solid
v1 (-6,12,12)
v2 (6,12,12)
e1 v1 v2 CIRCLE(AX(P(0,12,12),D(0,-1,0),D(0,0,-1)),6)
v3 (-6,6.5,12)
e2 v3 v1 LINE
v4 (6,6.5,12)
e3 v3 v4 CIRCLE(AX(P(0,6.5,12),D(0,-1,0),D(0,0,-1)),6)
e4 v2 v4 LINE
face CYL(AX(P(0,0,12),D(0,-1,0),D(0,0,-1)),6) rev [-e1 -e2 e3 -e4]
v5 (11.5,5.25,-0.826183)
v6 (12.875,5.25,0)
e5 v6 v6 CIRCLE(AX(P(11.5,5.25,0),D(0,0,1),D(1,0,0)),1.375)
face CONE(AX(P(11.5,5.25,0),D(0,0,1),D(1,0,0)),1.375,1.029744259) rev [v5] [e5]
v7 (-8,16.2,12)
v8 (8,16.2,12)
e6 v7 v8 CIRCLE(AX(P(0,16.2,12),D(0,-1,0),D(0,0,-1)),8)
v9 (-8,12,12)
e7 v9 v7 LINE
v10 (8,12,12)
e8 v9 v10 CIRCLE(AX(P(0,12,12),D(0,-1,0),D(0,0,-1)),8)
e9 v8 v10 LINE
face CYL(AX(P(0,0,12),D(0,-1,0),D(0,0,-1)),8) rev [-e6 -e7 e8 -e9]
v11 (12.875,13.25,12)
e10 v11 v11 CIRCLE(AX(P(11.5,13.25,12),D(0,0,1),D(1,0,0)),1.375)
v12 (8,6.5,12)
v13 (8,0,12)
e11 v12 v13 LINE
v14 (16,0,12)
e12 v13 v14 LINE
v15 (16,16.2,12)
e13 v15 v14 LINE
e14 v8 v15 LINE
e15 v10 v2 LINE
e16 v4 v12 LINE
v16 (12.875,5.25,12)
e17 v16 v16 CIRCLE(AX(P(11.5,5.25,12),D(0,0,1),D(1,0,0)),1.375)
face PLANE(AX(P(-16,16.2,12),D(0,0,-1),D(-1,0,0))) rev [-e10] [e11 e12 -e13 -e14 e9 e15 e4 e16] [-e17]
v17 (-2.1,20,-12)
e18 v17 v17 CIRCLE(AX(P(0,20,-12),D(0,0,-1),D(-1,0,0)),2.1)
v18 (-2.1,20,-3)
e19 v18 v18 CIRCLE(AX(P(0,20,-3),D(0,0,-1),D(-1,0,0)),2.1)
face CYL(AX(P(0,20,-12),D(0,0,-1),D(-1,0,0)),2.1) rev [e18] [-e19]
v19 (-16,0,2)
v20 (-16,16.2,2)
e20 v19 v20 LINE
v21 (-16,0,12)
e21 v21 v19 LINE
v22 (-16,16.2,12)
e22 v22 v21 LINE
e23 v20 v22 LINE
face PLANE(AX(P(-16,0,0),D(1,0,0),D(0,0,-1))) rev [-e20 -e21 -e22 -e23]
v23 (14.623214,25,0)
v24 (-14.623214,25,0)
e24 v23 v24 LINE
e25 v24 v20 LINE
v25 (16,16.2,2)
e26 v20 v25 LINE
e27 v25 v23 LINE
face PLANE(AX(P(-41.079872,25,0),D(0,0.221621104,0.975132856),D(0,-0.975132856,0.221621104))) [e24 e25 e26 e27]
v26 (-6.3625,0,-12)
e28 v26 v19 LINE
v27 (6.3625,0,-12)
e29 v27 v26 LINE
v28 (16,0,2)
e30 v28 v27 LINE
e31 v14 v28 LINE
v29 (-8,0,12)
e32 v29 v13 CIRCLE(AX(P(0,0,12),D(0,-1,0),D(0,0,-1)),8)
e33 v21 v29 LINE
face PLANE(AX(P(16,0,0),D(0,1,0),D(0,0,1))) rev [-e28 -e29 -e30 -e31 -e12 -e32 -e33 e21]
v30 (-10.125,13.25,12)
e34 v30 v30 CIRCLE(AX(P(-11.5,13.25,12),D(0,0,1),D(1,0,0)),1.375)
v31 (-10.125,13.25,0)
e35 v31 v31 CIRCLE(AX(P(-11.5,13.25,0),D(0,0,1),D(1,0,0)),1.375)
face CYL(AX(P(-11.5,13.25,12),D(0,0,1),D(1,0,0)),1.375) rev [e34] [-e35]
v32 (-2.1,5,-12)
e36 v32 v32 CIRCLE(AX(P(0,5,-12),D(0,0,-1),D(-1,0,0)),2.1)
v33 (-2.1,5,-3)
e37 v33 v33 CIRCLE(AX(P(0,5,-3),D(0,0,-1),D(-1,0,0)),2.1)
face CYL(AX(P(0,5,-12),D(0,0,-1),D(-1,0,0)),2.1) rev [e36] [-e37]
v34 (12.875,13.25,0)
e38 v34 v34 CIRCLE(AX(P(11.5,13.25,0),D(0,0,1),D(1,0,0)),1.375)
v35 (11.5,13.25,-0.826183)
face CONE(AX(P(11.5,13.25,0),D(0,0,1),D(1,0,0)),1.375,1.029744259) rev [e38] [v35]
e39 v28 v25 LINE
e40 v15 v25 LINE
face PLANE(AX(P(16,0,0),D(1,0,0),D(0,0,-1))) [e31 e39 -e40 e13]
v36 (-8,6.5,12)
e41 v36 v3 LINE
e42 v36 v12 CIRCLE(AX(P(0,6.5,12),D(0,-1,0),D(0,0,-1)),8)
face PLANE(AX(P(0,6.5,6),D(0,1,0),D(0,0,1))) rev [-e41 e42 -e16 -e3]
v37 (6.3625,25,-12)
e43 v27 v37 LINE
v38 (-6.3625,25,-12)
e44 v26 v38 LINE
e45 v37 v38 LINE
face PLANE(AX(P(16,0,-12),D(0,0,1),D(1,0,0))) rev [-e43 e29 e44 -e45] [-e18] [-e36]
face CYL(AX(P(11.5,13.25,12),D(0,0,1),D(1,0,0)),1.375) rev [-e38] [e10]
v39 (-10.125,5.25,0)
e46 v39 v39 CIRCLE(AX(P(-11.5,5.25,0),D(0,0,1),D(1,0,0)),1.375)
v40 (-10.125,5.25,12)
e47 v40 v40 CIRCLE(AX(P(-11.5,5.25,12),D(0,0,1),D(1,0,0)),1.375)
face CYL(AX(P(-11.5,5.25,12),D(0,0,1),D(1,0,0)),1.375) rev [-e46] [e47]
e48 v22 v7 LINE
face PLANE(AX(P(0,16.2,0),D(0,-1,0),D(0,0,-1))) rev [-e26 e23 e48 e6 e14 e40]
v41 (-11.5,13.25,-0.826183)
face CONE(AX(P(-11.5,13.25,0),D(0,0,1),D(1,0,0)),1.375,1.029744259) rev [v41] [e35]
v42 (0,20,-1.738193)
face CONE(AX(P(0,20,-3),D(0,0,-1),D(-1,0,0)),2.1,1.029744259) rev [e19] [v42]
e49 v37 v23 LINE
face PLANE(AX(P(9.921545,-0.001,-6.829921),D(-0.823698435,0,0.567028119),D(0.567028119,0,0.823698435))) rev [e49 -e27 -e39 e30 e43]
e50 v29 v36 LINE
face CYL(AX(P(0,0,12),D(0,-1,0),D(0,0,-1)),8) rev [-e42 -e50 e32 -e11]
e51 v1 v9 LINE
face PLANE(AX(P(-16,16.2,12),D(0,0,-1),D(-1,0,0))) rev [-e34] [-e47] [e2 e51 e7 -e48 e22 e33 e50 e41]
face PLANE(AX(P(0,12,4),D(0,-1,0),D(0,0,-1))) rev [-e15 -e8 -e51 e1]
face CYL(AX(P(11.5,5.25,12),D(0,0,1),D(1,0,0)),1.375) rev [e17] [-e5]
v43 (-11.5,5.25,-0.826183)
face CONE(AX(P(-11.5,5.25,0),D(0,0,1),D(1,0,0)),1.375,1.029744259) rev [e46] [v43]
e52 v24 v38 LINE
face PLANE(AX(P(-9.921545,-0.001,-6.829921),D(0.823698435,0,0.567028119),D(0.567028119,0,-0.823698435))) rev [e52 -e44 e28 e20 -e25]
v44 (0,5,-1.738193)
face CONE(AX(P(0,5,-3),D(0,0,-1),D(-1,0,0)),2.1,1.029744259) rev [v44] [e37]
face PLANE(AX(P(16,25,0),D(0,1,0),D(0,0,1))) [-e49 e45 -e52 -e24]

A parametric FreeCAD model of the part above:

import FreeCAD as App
import Part
import Sketcher

V = App.Vector


def add_polygon(sketch, points):
    """Adds a closed chain of lines whose ends are joined by coincident constraints."""
    first, n = sketch.GeometryCount, len(points)
    for a, b in zip(points, points[1:] + points[:1]):
        sketch.addGeometry(Part.LineSegment(App.Vector(*a, 0), App.Vector(*b, 0)), False)
    for i in range(n):
        sketch.addConstraint(Sketcher.Constraint("Coincident", first + i, 2, first + (i + 1) % n, 1))

doc = App.newDocument("Part")
body = doc.addObject("PartDesign::Body", "Body")

# Sketch on YZ plane
sketch1 = body.newObject("Sketcher::SketchObject", "Sketch")
sketch1.AttachmentSupport = (doc.getObject("YZ_Plane"), [""])
sketch1.MapMode = "FlatFace"
add_polygon(sketch1, [(25, 0), (0, 0), (0, -12), (25, -12)])  # lines 0-3
sketch1.addConstraint(Sketcher.Constraint("Horizontal", 0))
sketch1.addConstraint(Sketcher.Constraint("Vertical", 1))
sketch1.addConstraint(Sketcher.Constraint("Horizontal", 2))
sketch1.addConstraint(Sketcher.Constraint("Vertical", 3))
sketch1.addConstraint(Sketcher.Constraint("Coincident", 0, 2, -1, 1))
sketch1.addConstraint(Sketcher.Constraint("DistanceX", 0, 2, 0, 1, 25.0))
sketch1.addConstraint(Sketcher.Constraint("DistanceY", 1, 2, 1, 1, 12.0))
pad1 = body.newObject("PartDesign::Pad", "Pad")
pad1.Profile = sketch1
pad1.Length = 32
pad1.Midplane = True
body2 = doc.addObject("PartDesign::Body", "Body001")

# Sketch on XZ plane
sketch2 = body2.newObject("Sketcher::SketchObject", "Sketch001")
sketch2.AttachmentSupport = (doc.getObject("XZ_Plane001"), [""])
sketch2.MapMode = "FlatFace"
add_polygon(sketch2, [(-16, 2), (-16, 12), (16, 12), (16, 2)])  # lines 0-3
sketch2.addConstraint(Sketcher.Constraint("Vertical", 0))
sketch2.addConstraint(Sketcher.Constraint("Horizontal", 1))
sketch2.addConstraint(Sketcher.Constraint("Vertical", 2))
sketch2.addConstraint(Sketcher.Constraint("Horizontal", 3))
sketch2.addConstraint(Sketcher.Constraint("DistanceX", 1, 1, 1, 2, 32.0))
sketch2.addConstraint(Sketcher.Constraint("DistanceY", 0, 1, 0, 2, 10.0))
sketch2.addConstraint(Sketcher.Constraint("DistanceX", 0, 2, -1, 1, 16.0))
sketch2.addConstraint(Sketcher.Constraint("DistanceY", -1, 1, 0, 2, 12.0))
pad2 = body2.newObject("PartDesign::Pad", "Pad001")
pad2.Profile = sketch2
pad2.Length = 16.2
pad2.Reversed = True
body.AllowCompound = True
doc.recompute()

boolean = body.newObject("PartDesign::Boolean", "Boolean")
boolean.Type = "Fuse"
boolean.addObjects([body2])

# Sketch on YZ plane
sketch3 = body.newObject("Sketcher::SketchObject", "Sketch002")
sketch3.AttachmentSupport = (doc.getObject("YZ_Plane"), [""])
sketch3.MapMode = "FlatFace"
sketch3.AttachmentOffset = App.Placement(V(0, 0, 16), App.Rotation())
add_polygon(sketch3, [(16.2, 2), (0, 2), (0, 0), (25, 0)])  # lines 0-3
sketch3.addConstraint(Sketcher.Constraint("Horizontal", 0))
sketch3.addConstraint(Sketcher.Constraint("Vertical", 1))
sketch3.addConstraint(Sketcher.Constraint("Horizontal", 2))
sketch3.addConstraint(Sketcher.Constraint("Coincident", 1, 2, -1, 1))
sketch3.addConstraint(Sketcher.Constraint("DistanceX", 2, 1, 2, 2, 25.0))
sketch3.addConstraint(Sketcher.Constraint("DistanceY", 1, 2, 1, 1, 2.0))
sketch3.addConstraint(Sketcher.Constraint("DistanceX", 0, 2, 0, 1, 16.2))
pad3 = body.newObject("PartDesign::Pad", "Pad002")
pad3.Profile = sketch3
pad3.Length = 32
pad3.Reversed = True

# Sketch on XY plane
sketch4 = body.newObject("Sketcher::SketchObject", "Sketch003")
sketch4.AttachmentSupport = (doc.getObject("XY_Plane"), [""])
sketch4.MapMode = "FlatFace"
sketch4.AttachmentOffset = App.Placement(V(0, 0, -12), App.Rotation())
sketch4.addGeometry(Part.Circle(V(0, 20, 0), V(0, 0, 1), 2.1), False)
sketch4.addGeometry(Part.Circle(V(0, 5, 0), V(0, 0, 1), 2.1), False)
sketch4.addConstraint(Sketcher.Constraint("Equal", 0, 1))
sketch4.addConstraint(Sketcher.Constraint("PointOnObject", 0, 3, -2))
sketch4.addConstraint(Sketcher.Constraint("PointOnObject", 1, 3, -2))
sketch4.addConstraint(Sketcher.Constraint("Diameter", 0, 4.2))
sketch4.addConstraint(Sketcher.Constraint("DistanceY", -1, 1, 0, 3, 20.0))
sketch4.addConstraint(Sketcher.Constraint("DistanceY", -1, 1, 1, 3, 5.0))
doc.recompute()
hole = body.newObject("PartDesign::Hole", "Hole")
hole.Profile = sketch4
hole.ThreadType = "None"
hole.Diameter = 4.2
hole.DepthType = "Dimension"
hole.Depth = 9
hole.DrillPoint = "Angled"
hole.DrillPointAngle = 118
hole.Reversed = True

# Sketch on YZ plane
sketch5 = body.newObject("Sketcher::SketchObject", "Sketch004")
sketch5.AttachmentSupport = (doc.getObject("YZ_Plane"), [""])
sketch5.MapMode = "FlatFace"
add_polygon(sketch5, [(16.2, 4), (16.2, 12), (0, 12), (0, 4), (6.5, 4), (6.5, 6), (12, 6), (12, 4)])  # lines 0-7
sketch5.addGeometry(Part.LineSegment(V(0, 12, 0), V(16.2, 12, 0)), True)  # axis
sketch5.addConstraint(Sketcher.Constraint("Vertical", 0))
sketch5.addConstraint(Sketcher.Constraint("Horizontal", 1))
sketch5.addConstraint(Sketcher.Constraint("Vertical", 2))
sketch5.addConstraint(Sketcher.Constraint("Horizontal", 3))
sketch5.addConstraint(Sketcher.Constraint("Vertical", 4))
sketch5.addConstraint(Sketcher.Constraint("Horizontal", 5))
sketch5.addConstraint(Sketcher.Constraint("Vertical", 6))
sketch5.addConstraint(Sketcher.Constraint("Horizontal", 7))
sketch5.addConstraint(Sketcher.Constraint("Horizontal", 8))
sketch5.addConstraint(Sketcher.Constraint("Coincident", 8, 1, 1, 2))
sketch5.addConstraint(Sketcher.Constraint("PointOnObject", 1, 2, -2))
sketch5.addConstraint(Sketcher.Constraint("Horizontal", 3, 2, 6, 2))
sketch5.addConstraint(Sketcher.Constraint("Vertical", 7, 2, 8, 2))
sketch5.addConstraint(Sketcher.Constraint("DistanceY", 0, 1, 0, 2, 8.0))
sketch5.addConstraint(Sketcher.Constraint("DistanceY", 4, 1, 4, 2, 2.0))
sketch5.addConstraint(Sketcher.Constraint("DistanceX", 1, 2, 1, 1, 16.2))
sketch5.addConstraint(Sketcher.Constraint("DistanceX", 3, 1, 3, 2, 6.5))
sketch5.addConstraint(Sketcher.Constraint("DistanceX", 5, 1, 5, 2, 5.5))
sketch5.addConstraint(Sketcher.Constraint("DistanceY", -1, 1, 0, 2, 12.0))
groove = body.newObject("PartDesign::Groove", "Groove")
groove.Profile = sketch5
groove.ReferenceAxis = (sketch5, ["Axis0"])
groove.Angle = 360

# Sketch on XZ plane
sketch6 = body.newObject("Sketcher::SketchObject", "Sketch005")
sketch6.AttachmentSupport = (doc.getObject("XZ_Plane"), [""])
sketch6.MapMode = "FlatFace"
sketch6.AttachmentOffset = App.Placement(V(0, 0, -25), App.Rotation())
add_polygon(sketch6, [(6.4, -12), (14.6, 0), (16, 0), (16, -12)])  # lines 0-3
sketch6.addConstraint(Sketcher.Constraint("Horizontal", 1))
sketch6.addConstraint(Sketcher.Constraint("Vertical", 2))
sketch6.addConstraint(Sketcher.Constraint("Horizontal", 3))
sketch6.addConstraint(Sketcher.Constraint("PointOnObject", 0, 2, -1))
sketch6.addConstraint(Sketcher.Constraint("DistanceY", 2, 2, 2, 1, 12.0))
sketch6.addConstraint(Sketcher.Constraint("DistanceX", -1, 1, 1, 2, 16.0))
sketch6.addConstraint(Sketcher.Constraint("DistanceX", 3, 2, 3, 1, 9.6375))
sketch6.addConstraint(Sketcher.Constraint("Distance", 0, 14.568439))
pocket1 = body.newObject("PartDesign::Pocket", "Pocket")
pocket1.Profile = sketch6
pocket1.Type = "UpToFirst"
pocket1.Reversed = True

# Sketch on XZ plane
sketch7 = body.newObject("Sketcher::SketchObject", "Sketch006")
sketch7.AttachmentSupport = (doc.getObject("XZ_Plane"), [""])
sketch7.MapMode = "FlatFace"
sketch7.AttachmentOffset = App.Placement(V(0, 0, -25), App.Rotation())
add_polygon(sketch7, [(16, 0), (14.6, 0), (16, 2)])  # lines 0-2
sketch7.addConstraint(Sketcher.Constraint("Horizontal", 0))
sketch7.addConstraint(Sketcher.Constraint("Vertical", 2))
sketch7.addConstraint(Sketcher.Constraint("PointOnObject", 0, 2, -1))
sketch7.addConstraint(Sketcher.Constraint("DistanceY", 2, 2, 2, 1, 2.0))
sketch7.addConstraint(Sketcher.Constraint("DistanceX", -1, 1, 1, 2, 16.0))
sketch7.addConstraint(Sketcher.Constraint("DistanceX", 0, 2, 0, 1, 1.376786))
pocket2 = body.newObject("PartDesign::Pocket", "Pocket001")
pocket2.Profile = sketch7
pocket2.Length = 25
pocket2.Reversed = True

# Sketch on XZ plane
sketch8 = body.newObject("Sketcher::SketchObject", "Sketch007")
sketch8.AttachmentSupport = (doc.getObject("XZ_Plane"), [""])
sketch8.MapMode = "FlatFace"
sketch8.AttachmentOffset = App.Placement(V(0, 0, -25), App.Rotation())
add_polygon(sketch8, [(-16, 0), (-14.6, 0), (-6.4, -12), (-16, -12)])  # lines 0-3
sketch8.addConstraint(Sketcher.Constraint("Horizontal", 0))
sketch8.addConstraint(Sketcher.Constraint("Horizontal", 2))
sketch8.addConstraint(Sketcher.Constraint("Vertical", 3))
sketch8.addConstraint(Sketcher.Constraint("PointOnObject", 0, 2, -1))
sketch8.addConstraint(Sketcher.Constraint("DistanceY", 3, 1, 3, 2, 12.0))
sketch8.addConstraint(Sketcher.Constraint("DistanceX", 2, 2, -1, 1, 16.0))
sketch8.addConstraint(Sketcher.Constraint("DistanceX", 2, 2, 2, 1, 9.6375))
sketch8.addConstraint(Sketcher.Constraint("Distance", 1, 14.568439))
pocket3 = body.newObject("PartDesign::Pocket", "Pocket002")
pocket3.Profile = sketch8
pocket3.Type = "UpToFirst"
pocket3.Reversed = True

# Sketch on XZ plane
sketch9 = body.newObject("Sketcher::SketchObject", "Sketch008")
sketch9.AttachmentSupport = (doc.getObject("XZ_Plane"), [""])
sketch9.MapMode = "FlatFace"
sketch9.AttachmentOffset = App.Placement(V(0, 0, -25), App.Rotation())
add_polygon(sketch9, [(-16, 0), (-16, 2), (-14.6, 0)])  # lines 0-2
sketch9.addConstraint(Sketcher.Constraint("Vertical", 0))
sketch9.addConstraint(Sketcher.Constraint("Horizontal", 2))
sketch9.addConstraint(Sketcher.Constraint("PointOnObject", 1, 2, -1))
sketch9.addConstraint(Sketcher.Constraint("DistanceY", 0, 1, 0, 2, 2.0))
sketch9.addConstraint(Sketcher.Constraint("DistanceX", 0, 2, -1, 1, 16.0))
sketch9.addConstraint(Sketcher.Constraint("DistanceX", 2, 2, 2, 1, 1.376786))
pocket4 = body.newObject("PartDesign::Pocket", "Pocket003")
pocket4.Profile = sketch9
pocket4.Length = 25
pocket4.Reversed = True

# Sketch on XY plane
sketch10 = body.newObject("Sketcher::SketchObject", "Sketch009")
sketch10.AttachmentSupport = (doc.getObject("XY_Plane"), [""])
sketch10.MapMode = "FlatFace"
sketch10.AttachmentOffset = App.Placement(V(0, 0, 12), App.Rotation())
sketch10.addGeometry(Part.Circle(V(-11.5, 13.2, 0), V(0, 0, 1), 1.4), False)
sketch10.addGeometry(Part.Circle(V(11.5, 13.2, 0), V(0, 0, 1), 1.4), False)
sketch10.addGeometry(Part.Circle(V(-11.5, 5.2, 0), V(0, 0, 1), 1.4), False)
sketch10.addGeometry(Part.Circle(V(11.5, 5.2, 0), V(0, 0, 1), 1.4), False)
sketch10.addConstraint(Sketcher.Constraint("Equal", 0, 1))
sketch10.addConstraint(Sketcher.Constraint("Equal", 1, 2))
sketch10.addConstraint(Sketcher.Constraint("Equal", 2, 3))
sketch10.addConstraint(Sketcher.Constraint("Symmetric", 0, 3, 1, 3, -2))
sketch10.addConstraint(Sketcher.Constraint("Symmetric", 2, 3, 3, 3, -2))
sketch10.addConstraint(Sketcher.Constraint("Vertical", 0, 3, 2, 3))
sketch10.addConstraint(Sketcher.Constraint("Diameter", 0, 2.75))
sketch10.addConstraint(Sketcher.Constraint("DistanceX", 0, 3, 1, 3, 23.0))
sketch10.addConstraint(Sketcher.Constraint("DistanceY", 2, 3, 0, 3, 8.0))
sketch10.addConstraint(Sketcher.Constraint("DistanceY", -1, 1, 0, 3, 13.25))
doc.recompute()
hole2 = body.newObject("PartDesign::Hole", "Hole001")
hole2.Profile = sketch10
hole2.ThreadType = "None"
hole2.Diameter = 2.75
hole2.DepthType = "Dimension"
hole2.Depth = 12
hole2.DrillPoint = "Angled"
hole2.DrillPointAngle = 118

doc.recompute()
